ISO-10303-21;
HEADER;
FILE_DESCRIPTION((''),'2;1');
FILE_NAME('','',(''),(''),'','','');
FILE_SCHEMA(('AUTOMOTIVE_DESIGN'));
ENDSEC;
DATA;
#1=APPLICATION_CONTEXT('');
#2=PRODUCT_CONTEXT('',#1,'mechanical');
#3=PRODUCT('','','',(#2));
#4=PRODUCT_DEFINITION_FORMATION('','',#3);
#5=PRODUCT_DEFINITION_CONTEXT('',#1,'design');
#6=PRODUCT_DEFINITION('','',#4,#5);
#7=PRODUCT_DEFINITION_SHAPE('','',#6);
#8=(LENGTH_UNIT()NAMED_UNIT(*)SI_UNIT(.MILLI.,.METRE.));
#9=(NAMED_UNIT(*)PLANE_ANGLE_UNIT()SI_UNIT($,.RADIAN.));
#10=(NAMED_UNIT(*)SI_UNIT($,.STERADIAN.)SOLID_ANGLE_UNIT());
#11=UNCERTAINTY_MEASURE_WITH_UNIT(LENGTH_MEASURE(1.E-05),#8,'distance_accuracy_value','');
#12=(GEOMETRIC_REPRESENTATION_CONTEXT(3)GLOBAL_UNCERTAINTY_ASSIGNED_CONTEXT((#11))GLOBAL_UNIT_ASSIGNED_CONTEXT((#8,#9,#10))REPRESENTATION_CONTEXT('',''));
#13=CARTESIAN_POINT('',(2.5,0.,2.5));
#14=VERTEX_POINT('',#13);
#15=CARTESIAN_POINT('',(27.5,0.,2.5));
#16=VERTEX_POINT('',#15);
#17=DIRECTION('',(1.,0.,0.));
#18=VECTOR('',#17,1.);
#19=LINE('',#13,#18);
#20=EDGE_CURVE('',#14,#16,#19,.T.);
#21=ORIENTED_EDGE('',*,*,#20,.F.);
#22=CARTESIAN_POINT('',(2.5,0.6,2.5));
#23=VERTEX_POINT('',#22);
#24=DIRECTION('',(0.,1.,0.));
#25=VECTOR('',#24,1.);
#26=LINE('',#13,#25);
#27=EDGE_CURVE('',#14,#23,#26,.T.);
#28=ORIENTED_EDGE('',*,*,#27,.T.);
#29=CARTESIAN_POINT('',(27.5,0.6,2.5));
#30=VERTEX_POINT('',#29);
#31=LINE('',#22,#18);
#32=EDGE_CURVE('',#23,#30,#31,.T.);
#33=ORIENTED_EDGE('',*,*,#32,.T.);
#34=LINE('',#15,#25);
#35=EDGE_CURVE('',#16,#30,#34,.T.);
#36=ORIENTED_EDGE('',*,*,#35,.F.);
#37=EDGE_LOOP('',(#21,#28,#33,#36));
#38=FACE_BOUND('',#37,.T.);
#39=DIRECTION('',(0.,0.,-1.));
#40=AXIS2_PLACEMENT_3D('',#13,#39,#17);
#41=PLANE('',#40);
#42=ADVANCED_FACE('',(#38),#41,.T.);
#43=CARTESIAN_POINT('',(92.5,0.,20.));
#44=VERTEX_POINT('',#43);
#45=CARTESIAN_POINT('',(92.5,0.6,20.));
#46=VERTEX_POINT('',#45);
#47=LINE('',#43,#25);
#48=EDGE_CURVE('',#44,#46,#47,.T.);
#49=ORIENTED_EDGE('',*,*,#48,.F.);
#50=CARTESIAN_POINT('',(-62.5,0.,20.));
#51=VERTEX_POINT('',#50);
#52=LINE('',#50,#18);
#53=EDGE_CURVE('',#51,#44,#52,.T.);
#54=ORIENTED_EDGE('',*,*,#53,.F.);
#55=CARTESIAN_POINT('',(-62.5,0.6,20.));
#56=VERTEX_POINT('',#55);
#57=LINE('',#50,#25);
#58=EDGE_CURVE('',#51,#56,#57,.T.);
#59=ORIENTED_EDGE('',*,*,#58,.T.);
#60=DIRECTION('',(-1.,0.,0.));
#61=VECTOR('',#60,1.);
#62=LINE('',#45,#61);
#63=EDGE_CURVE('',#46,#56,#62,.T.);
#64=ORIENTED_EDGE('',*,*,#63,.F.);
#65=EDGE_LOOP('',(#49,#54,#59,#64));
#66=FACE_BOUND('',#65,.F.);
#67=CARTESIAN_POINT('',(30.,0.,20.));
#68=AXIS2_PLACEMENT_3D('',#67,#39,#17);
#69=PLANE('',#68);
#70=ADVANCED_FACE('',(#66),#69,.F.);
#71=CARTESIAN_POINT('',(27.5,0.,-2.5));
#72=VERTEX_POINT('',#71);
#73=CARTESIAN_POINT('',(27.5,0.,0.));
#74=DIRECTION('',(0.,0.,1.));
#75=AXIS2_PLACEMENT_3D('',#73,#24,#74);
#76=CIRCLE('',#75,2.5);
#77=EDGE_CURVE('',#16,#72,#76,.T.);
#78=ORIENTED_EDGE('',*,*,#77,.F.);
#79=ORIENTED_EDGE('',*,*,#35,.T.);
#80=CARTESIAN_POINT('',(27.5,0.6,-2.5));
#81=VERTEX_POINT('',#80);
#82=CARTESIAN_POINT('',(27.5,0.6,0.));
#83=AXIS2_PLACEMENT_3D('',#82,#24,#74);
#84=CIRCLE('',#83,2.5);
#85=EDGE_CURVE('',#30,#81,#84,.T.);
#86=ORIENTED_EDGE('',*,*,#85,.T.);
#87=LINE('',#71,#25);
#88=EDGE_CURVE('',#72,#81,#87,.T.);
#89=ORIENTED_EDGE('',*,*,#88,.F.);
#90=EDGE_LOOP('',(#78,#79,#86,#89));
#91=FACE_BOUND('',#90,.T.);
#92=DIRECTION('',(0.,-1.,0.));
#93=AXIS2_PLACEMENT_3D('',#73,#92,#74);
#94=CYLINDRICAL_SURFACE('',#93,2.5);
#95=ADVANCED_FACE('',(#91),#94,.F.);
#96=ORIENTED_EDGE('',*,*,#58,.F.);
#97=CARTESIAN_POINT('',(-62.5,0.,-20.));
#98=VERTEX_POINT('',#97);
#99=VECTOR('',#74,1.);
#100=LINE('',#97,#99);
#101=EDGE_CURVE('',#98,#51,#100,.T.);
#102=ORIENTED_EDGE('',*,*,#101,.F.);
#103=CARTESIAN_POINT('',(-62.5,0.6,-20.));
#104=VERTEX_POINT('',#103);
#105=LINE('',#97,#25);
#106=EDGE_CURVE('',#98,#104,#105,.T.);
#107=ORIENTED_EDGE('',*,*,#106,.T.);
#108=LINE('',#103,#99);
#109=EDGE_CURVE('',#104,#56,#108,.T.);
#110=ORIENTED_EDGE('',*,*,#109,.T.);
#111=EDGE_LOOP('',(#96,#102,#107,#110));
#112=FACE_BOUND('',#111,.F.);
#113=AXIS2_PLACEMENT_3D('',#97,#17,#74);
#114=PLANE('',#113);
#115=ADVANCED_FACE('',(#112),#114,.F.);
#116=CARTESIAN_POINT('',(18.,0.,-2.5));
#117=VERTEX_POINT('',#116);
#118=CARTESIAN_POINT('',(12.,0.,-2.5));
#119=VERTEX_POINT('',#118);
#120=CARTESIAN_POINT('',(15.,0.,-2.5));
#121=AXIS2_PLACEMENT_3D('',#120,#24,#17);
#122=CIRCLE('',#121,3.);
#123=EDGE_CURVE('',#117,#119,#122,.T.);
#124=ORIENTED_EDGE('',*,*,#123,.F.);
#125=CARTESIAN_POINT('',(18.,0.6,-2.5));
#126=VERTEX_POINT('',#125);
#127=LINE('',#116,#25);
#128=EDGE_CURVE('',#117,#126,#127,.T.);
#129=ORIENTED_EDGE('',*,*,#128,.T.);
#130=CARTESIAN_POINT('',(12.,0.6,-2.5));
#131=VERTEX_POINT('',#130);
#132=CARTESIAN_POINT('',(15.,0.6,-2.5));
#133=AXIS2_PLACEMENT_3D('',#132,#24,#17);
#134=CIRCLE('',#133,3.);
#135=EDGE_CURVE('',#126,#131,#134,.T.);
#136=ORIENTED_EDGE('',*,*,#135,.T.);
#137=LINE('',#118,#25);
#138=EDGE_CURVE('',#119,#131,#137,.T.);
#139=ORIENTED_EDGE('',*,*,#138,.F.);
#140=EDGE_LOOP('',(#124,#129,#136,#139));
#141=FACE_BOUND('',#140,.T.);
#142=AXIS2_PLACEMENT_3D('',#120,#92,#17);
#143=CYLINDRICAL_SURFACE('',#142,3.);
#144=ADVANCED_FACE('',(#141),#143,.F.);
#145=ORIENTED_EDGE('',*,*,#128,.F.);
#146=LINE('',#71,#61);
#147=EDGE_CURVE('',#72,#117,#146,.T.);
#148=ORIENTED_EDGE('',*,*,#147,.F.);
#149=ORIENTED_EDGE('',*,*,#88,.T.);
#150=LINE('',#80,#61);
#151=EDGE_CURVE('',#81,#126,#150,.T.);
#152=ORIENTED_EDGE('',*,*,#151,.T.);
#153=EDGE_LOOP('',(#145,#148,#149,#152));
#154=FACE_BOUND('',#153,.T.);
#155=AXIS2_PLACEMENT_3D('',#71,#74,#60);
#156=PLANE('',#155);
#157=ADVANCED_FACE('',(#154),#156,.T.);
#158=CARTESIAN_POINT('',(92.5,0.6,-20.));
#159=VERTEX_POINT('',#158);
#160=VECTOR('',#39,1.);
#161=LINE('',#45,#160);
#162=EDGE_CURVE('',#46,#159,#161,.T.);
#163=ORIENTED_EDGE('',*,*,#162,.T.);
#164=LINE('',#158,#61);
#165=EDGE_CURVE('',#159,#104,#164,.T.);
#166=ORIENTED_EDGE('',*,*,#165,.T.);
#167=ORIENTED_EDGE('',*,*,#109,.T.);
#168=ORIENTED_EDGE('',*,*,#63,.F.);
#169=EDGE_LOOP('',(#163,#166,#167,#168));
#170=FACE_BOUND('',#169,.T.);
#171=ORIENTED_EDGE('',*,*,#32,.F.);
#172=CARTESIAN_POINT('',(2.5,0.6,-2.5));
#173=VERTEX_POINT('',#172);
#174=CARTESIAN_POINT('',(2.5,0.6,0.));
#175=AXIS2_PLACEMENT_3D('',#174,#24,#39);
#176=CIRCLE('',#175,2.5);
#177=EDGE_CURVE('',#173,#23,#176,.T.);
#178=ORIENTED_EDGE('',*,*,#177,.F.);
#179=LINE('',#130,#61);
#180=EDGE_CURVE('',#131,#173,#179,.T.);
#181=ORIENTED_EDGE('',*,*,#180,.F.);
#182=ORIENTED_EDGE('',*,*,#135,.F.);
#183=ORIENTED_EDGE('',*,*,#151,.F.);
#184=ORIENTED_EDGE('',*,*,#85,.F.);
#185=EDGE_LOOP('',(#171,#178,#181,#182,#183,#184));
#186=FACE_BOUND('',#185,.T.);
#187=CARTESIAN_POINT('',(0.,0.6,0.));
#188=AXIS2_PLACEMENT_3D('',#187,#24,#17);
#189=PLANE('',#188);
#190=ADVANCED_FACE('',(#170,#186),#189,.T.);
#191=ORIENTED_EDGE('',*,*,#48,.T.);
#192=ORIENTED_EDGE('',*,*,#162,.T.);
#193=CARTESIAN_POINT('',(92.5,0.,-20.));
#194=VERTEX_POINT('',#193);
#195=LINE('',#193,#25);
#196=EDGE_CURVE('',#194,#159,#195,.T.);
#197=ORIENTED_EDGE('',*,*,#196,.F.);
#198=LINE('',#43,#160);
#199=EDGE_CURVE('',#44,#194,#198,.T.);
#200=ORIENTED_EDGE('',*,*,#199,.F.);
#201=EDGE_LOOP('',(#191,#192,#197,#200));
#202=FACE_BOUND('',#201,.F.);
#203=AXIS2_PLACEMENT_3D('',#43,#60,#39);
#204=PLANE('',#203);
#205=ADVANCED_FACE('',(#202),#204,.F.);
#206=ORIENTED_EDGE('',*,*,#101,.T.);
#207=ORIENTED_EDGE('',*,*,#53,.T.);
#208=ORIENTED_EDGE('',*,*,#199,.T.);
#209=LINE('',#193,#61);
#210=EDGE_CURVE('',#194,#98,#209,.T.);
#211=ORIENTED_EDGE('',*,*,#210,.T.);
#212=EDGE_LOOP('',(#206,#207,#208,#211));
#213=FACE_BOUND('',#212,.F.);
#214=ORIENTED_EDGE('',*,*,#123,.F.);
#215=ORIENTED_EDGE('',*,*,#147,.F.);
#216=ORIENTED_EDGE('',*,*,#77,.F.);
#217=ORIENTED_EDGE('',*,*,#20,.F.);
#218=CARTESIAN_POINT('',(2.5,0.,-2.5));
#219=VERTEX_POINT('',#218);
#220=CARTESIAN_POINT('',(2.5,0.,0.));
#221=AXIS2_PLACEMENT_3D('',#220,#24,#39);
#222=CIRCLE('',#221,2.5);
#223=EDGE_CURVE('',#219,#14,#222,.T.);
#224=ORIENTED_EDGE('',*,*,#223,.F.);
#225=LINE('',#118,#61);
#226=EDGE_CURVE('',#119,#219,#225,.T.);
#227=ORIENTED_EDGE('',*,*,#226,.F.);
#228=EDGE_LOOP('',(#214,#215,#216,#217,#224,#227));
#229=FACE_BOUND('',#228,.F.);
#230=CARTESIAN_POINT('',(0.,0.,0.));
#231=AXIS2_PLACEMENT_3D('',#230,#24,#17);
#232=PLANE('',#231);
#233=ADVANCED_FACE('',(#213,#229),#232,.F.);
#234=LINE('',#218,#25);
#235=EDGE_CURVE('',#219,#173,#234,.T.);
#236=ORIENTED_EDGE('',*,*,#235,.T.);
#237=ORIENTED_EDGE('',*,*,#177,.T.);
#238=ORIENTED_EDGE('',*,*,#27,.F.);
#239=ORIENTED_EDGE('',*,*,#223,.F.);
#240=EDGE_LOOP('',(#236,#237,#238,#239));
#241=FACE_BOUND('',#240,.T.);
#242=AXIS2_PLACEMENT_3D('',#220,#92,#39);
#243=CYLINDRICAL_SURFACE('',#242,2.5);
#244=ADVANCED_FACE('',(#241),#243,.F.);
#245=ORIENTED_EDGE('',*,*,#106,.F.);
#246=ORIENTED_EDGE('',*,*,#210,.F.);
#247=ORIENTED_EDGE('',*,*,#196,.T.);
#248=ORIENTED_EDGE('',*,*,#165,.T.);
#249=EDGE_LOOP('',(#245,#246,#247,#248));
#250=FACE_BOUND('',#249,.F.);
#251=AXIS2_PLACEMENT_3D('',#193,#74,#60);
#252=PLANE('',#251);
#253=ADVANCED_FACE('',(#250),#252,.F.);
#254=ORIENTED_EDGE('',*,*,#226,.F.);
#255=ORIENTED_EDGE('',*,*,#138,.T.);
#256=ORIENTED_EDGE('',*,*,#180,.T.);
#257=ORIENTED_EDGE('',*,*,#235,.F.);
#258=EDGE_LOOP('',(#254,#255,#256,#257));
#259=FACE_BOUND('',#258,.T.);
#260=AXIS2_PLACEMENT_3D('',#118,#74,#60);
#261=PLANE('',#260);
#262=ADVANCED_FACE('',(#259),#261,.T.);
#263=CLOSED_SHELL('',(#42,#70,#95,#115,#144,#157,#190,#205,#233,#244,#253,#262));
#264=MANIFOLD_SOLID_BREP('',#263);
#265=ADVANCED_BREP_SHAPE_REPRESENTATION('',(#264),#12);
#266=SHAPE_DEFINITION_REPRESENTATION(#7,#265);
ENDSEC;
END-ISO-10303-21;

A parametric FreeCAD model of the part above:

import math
import FreeCAD as App
import Part
import Sketcher
Q = App.Units.Quantity

doc = App.newDocument("Part")
body = doc.addObject("PartDesign::Body", "Body")

# Sketch on XZ plane
sketch1 = body.newObject("Sketcher::SketchObject", "Sketch")
sketch1.AttachmentSupport = (doc.getObject("XZ_Plane"), [""])
sketch1.MapMode = "FlatFace"
sketch1.addGeometry(Part.LineSegment(App.Vector(92, 20, 0), App.Vector(92, -20, 0)), False)
sketch1.addGeometry(Part.LineSegment(App.Vector(92, -20, 0), App.Vector(-62, -20, 0)), False)
sketch1.addGeometry(Part.LineSegment(App.Vector(-62, -20, 0), App.Vector(-62, 20, 0)), False)
sketch1.addGeometry(Part.LineSegment(App.Vector(-62, 20, 0), App.Vector(92, 20, 0)), False)
sketch1.addConstraint(Sketcher.Constraint("Coincident", 0, 2, 1, 1))
sketch1.addConstraint(Sketcher.Constraint("Coincident", 1, 2, 2, 1))
sketch1.addConstraint(Sketcher.Constraint("Coincident", 2, 2, 3, 1))
sketch1.addConstraint(Sketcher.Constraint("Coincident", 3, 2, 0, 1))
sketch1.addConstraint(Sketcher.Constraint("Vertical", 0))
sketch1.addConstraint(Sketcher.Constraint("Horizontal", 1))
sketch1.addConstraint(Sketcher.Constraint("Vertical", 2))
sketch1.addConstraint(Sketcher.Constraint("Horizontal", 3))
sketch1.addConstraint(Sketcher.Constraint("DistanceX", 1, 2, 1, 1, Q("155 mm")))
sketch1.addConstraint(Sketcher.Constraint("DistanceY", 0, 2, 0, 1, Q("40 mm")))
sketch1.addConstraint(Sketcher.Constraint("DistanceY", 0, 2, -1, 1, Q("20 mm")))
sketch1.addConstraint(Sketcher.Constraint("DistanceX", -1, 1, 0, 2, Q("92.5 mm")))
pad1 = body.newObject("PartDesign::Pad", "Pad")
pad1.Profile = sketch1
pad1.Length = 0.6
pad1.Reversed = True

# Sketch on XZ plane
sketch2 = body.newObject("Sketcher::SketchObject", "Sketch001")
sketch2.AttachmentSupport = (doc.getObject("XZ_Plane"), [""])
sketch2.MapMode = "FlatFace"
sketch2.addGeometry(Part.ArcOfCircle(Part.Circle(App.Vector(2.5, 0, 0), App.Vector(0, 0, 1), 2.5), math.radians(90), math.radians(270)), False)
sketch2.addGeometry(Part.LineSegment(App.Vector(2.5, 2.5, 0), App.Vector(27.5, 2.5, 0)), False)
sketch2.addGeometry(Part.ArcOfCircle(Part.Circle(App.Vector(27.5, 0, 0), App.Vector(0, 0, 1), 2.5), math.radians(-90), math.radians(90)), False)
sketch2.addGeometry(Part.LineSegment(App.Vector(27.5, -2.5, 0), App.Vector(18, -2.5, 0)), False)
sketch2.addGeometry(Part.ArcOfCircle(Part.Circle(App.Vector(15, -2.5, 0), App.Vector(0, 0, 1), 3), math.radians(180), math.radians(360)), False)
sketch2.addGeometry(Part.LineSegment(App.Vector(12, -2.5, 0), App.Vector(2.5, -2.5, 0)), False)
sketch2.addConstraint(Sketcher.Constraint("Tangent", 0, 1, 1, 1))
sketch2.addConstraint(Sketcher.Constraint("Tangent", 1, 2, 2, 2))
sketch2.addConstraint(Sketcher.Constraint("Tangent", 2, 1, 3, 1))
sketch2.addConstraint(Sketcher.Constraint("Coincident", 3, 2, 4, 2))
sketch2.addConstraint(Sketcher.Constraint("Coincident", 4, 1, 5, 1))
sketch2.addConstraint(Sketcher.Constraint("Tangent", 5, 2, 0, 2))
sketch2.addConstraint(Sketcher.Constraint("Horizontal", 1))
sketch2.addConstraint(Sketcher.Constraint("Horizontal", 3))
sketch2.addConstraint(Sketcher.Constraint("Horizontal", 5))
sketch2.addConstraint(Sketcher.Constraint("Equal", 0, 2))
sketch2.addConstraint(Sketcher.Constraint("PointOnObject", 0, 3, -1))
sketch2.addConstraint(Sketcher.Constraint("Horizontal", 4, 3, 2, 1))
sketch2.addConstraint(Sketcher.Constraint("Equal", 3, 5))
sketch2.addConstraint(Sketcher.Constraint("Radius", 4, Q("3 mm")))
sketch2.addConstraint(Sketcher.Constraint("Radius", 0, Q("2.5 mm")))
sketch2.addConstraint(Sketcher.Constraint("DistanceX", 1, 1, 1, 2, Q("25 mm")))
sketch2.addConstraint(Sketcher.Constraint("DistanceX", -1, 1, 4, 3, Q("15 mm")))
pocket1 = body.newObject("PartDesign::Pocket", "Pocket")
pocket1.Profile = sketch2
pocket1.Length = 0.6

doc.recompute()
